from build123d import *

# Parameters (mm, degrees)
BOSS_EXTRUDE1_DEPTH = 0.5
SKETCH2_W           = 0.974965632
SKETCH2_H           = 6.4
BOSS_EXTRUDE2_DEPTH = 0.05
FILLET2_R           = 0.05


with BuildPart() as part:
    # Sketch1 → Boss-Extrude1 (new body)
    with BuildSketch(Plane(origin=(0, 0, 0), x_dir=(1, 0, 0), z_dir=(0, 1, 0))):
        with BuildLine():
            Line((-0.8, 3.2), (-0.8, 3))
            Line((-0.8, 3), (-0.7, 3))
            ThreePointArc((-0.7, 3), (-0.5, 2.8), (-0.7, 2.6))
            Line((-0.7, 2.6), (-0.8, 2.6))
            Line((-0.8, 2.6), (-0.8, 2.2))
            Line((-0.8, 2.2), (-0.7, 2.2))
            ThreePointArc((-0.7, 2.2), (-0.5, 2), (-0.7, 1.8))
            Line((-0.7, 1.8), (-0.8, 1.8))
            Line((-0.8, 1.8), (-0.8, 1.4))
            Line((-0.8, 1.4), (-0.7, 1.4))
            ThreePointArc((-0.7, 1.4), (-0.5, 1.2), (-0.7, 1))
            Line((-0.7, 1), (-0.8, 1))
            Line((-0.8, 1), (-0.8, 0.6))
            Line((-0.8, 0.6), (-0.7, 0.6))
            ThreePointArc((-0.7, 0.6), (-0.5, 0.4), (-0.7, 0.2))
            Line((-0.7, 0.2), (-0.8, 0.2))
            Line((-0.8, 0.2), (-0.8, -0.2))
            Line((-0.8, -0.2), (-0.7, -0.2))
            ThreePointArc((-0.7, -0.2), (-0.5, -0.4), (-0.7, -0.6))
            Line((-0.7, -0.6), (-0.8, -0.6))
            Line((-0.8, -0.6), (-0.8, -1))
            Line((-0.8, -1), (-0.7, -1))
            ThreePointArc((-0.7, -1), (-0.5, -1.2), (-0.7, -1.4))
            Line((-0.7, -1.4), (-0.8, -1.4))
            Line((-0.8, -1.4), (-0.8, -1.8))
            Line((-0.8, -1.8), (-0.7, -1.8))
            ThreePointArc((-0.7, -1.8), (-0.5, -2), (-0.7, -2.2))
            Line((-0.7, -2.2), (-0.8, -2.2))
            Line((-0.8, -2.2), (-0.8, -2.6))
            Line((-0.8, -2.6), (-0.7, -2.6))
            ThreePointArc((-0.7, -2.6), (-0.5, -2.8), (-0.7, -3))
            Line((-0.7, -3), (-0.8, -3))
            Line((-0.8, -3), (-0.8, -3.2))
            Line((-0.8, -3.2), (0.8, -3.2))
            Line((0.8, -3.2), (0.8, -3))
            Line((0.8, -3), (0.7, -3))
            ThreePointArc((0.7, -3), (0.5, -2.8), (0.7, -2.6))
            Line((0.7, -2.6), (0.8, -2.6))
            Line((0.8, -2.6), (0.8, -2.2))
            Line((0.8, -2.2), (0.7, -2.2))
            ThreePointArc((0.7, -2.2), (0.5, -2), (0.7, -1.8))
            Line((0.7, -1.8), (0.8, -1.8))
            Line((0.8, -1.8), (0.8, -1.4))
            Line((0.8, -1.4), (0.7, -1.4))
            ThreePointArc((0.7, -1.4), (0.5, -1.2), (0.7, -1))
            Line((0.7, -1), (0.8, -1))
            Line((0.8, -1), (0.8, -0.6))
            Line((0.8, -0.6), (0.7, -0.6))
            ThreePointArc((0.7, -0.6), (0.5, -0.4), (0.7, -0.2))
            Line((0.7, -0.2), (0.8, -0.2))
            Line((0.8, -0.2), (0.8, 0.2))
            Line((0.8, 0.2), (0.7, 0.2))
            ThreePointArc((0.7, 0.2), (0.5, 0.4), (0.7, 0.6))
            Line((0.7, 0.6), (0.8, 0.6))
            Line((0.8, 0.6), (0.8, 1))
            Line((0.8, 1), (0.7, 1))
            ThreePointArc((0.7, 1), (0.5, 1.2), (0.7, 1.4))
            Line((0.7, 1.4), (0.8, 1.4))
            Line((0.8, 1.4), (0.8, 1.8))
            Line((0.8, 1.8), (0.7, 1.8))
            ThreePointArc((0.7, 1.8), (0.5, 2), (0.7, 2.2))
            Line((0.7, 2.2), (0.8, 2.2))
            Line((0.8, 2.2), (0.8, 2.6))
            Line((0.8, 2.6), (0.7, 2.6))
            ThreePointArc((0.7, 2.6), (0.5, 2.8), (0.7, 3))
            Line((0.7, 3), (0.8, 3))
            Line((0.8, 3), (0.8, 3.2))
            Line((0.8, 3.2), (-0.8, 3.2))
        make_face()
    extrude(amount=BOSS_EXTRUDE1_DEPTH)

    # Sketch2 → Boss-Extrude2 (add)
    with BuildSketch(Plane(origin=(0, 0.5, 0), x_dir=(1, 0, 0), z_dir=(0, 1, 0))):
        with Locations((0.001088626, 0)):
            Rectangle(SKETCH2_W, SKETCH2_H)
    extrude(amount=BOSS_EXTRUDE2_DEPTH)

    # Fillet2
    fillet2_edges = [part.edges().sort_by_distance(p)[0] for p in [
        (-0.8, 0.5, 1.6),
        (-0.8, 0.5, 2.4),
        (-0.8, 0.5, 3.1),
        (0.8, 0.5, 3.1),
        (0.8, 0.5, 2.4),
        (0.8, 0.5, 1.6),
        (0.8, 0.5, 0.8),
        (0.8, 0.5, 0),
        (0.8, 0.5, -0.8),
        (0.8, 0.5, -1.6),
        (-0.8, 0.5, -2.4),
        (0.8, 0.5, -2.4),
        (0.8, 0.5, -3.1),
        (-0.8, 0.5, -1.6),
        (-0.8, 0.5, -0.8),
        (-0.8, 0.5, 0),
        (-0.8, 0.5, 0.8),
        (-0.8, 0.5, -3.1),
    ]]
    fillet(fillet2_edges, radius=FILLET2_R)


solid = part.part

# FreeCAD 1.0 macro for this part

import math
import FreeCAD as App
import Part
import Sketcher
from FreeCAD import Vector
Q = App.Units.Quantity


def edges_at(feature, points):
    """Names of the edges that pass closest to the given points."""
    edges = feature.Shape.Edges
    near = lambda p: min(range(len(edges)), key=lambda i: edges[i].distToShape(Part.Vertex(*p))[0])
    return sorted({f"Edge{near(p) + 1}" for p in points})

doc = App.newDocument("Part")
body = doc.addObject("PartDesign::Body", "Body")

sketch1 = body.newObject("Sketcher::SketchObject", "Sketch")
sketch1.AttachmentSupport = (doc.getObject("XZ_Plane"), [""])
sketch1.MapMode = "FlatFace"
sketch1.addGeometry([
    Part.LineSegment(Vector(-0.8, -3.2, 0), Vector(-0.8, -3, 0)),
    Part.LineSegment(Vector(-0.8, -3, 0), Vector(-0.7, -3, 0)),
    Part.ArcOfCircle(Part.Circle(Vector(-0.7, -2.8, 0), Vector(0, 0, 1), 0.2), math.radians(-90), math.radians(90)),
    Part.LineSegment(Vector(-0.7, -2.6, 0), Vector(-0.8, -2.6, 0)),
    Part.LineSegment(Vector(-0.8, -2.6, 0), Vector(-0.8, -2.2, 0)),
    Part.LineSegment(Vector(-0.8, -2.2, 0), Vector(-0.7, -2.2, 0)),
    Part.ArcOfCircle(Part.Circle(Vector(-0.7, -2, 0), Vector(0, 0, 1), 0.2), math.radians(-90), math.radians(90)),
    Part.LineSegment(Vector(-0.7, -1.8, 0), Vector(-0.8, -1.8, 0)),
    Part.LineSegment(Vector(-0.8, -1.8, 0), Vector(-0.8, -1.4, 0)),
    Part.LineSegment(Vector(-0.8, -1.4, 0), Vector(-0.7, -1.4, 0)),
    Part.ArcOfCircle(Part.Circle(Vector(-0.7, -1.2, 0), Vector(0, 0, 1), 0.2), math.radians(-90), math.radians(90)),
    Part.LineSegment(Vector(-0.7, -1, 0), Vector(-0.8, -1, 0)),
    Part.LineSegment(Vector(-0.8, -1, 0), Vector(-0.8, -0.6, 0)),
    Part.LineSegment(Vector(-0.8, -0.6, 0), Vector(-0.7, -0.6, 0)),
    Part.ArcOfCircle(Part.Circle(Vector(-0.7, -0.4, 0), Vector(0, 0, 1), 0.2), math.radians(-90), math.radians(90)),
    Part.LineSegment(Vector(-0.7, -0.2, 0), Vector(-0.8, -0.2, 0)),
    Part.LineSegment(Vector(-0.8, -0.2, 0), Vector(-0.8, 0.2, 0)),
    Part.LineSegment(Vector(-0.8, 0.2, 0), Vector(-0.7, 0.2, 0)),
    Part.ArcOfCircle(Part.Circle(Vector(-0.7, 0.4, 0), Vector(0, 0, 1), 0.2), math.radians(-90), math.radians(90)),
    Part.LineSegment(Vector(-0.7, 0.6, 0), Vector(-0.8, 0.6, 0)),
    Part.LineSegment(Vector(-0.8, 0.6, 0), Vector(-0.8, 1, 0)),
    Part.LineSegment(Vector(-0.8, 1, 0), Vector(-0.7, 1, 0)),
    Part.ArcOfCircle(Part.Circle(Vector(-0.7, 1.2, 0), Vector(0, 0, 1), 0.2), math.radians(-90), math.radians(90)),
    Part.LineSegment(Vector(-0.7, 1.4, 0), Vector(-0.8, 1.4, 0)),
    Part.LineSegment(Vector(-0.8, 1.4, 0), Vector(-0.8, 1.8, 0)),
    Part.LineSegment(Vector(-0.8, 1.8, 0), Vector(-0.7, 1.8, 0)),
    Part.ArcOfCircle(Part.Circle(Vector(-0.7, 2, 0), Vector(0, 0, 1), 0.2), math.radians(-90), math.radians(90)),
    Part.LineSegment(Vector(-0.7, 2.2, 0), Vector(-0.8, 2.2, 0)),
    Part.LineSegment(Vector(-0.8, 2.2, 0), Vector(-0.8, 2.6, 0)),
    Part.LineSegment(Vector(-0.8, 2.6, 0), Vector(-0.7, 2.6, 0)),
    Part.ArcOfCircle(Part.Circle(Vector(-0.7, 2.8, 0), Vector(0, 0, 1), 0.2), math.radians(-90), math.radians(90)),
    Part.LineSegment(Vector(-0.7, 3, 0), Vector(-0.8, 3, 0)),
    Part.LineSegment(Vector(-0.8, 3, 0), Vector(-0.8, 3.2, 0)),
    Part.LineSegment(Vector(-0.8, 3.2, 0), Vector(0.8, 3.2, 0)),
    Part.LineSegment(Vector(0.8, 3.2, 0), Vector(0.8, 3, 0)),
    Part.LineSegment(Vector(0.8, 3, 0), Vector(0.7, 3, 0)),
    Part.ArcOfCircle(Part.Circle(Vector(0.7, 2.8, 0), Vector(0, 0, 1), 0.2), math.radians(90), math.radians(270)),
    Part.LineSegment(Vector(0.7, 2.6, 0), Vector(0.8, 2.6, 0)),
    Part.LineSegment(Vector(0.8, 2.6, 0), Vector(0.8, 2.2, 0)),
    Part.LineSegment(Vector(0.8, 2.2, 0), Vector(0.7, 2.2, 0)),
    Part.ArcOfCircle(Part.Circle(Vector(0.7, 2, 0), Vector(0, 0, 1), 0.2), math.radians(90), math.radians(270)),
    Part.LineSegment(Vector(0.7, 1.8, 0), Vector(0.8, 1.8, 0)),
    Part.LineSegment(Vector(0.8, 1.8, 0), Vector(0.8, 1.4, 0)),
    Part.LineSegment(Vector(0.8, 1.4, 0), Vector(0.7, 1.4, 0)),
    Part.ArcOfCircle(Part.Circle(Vector(0.7, 1.2, 0), Vector(0, 0, 1), 0.2), math.radians(90), math.radians(270)),
    Part.LineSegment(Vector(0.7, 1, 0), Vector(0.8, 1, 0)),
    Part.LineSegment(Vector(0.8, 1, 0), Vector(0.8, 0.6, 0)),
    Part.LineSegment(Vector(0.8, 0.6, 0), Vector(0.7, 0.6, 0)),
    Part.ArcOfCircle(Part.Circle(Vector(0.7, 0.4, 0), Vector(0, 0, 1), 0.2), math.radians(90), math.radians(270)),
    Part.LineSegment(Vector(0.7, 0.2, 0), Vector(0.8, 0.2, 0)),
    Part.LineSegment(Vector(0.8, 0.2, 0), Vector(0.8, -0.2, 0)),
    Part.LineSegment(Vector(0.8, -0.2, 0), Vector(0.7, -0.2, 0)),
    Part.ArcOfCircle(Part.Circle(Vector(0.7, -0.4, 0), Vector(0, 0, 1), 0.2), math.radians(90), math.radians(270)),
    Part.LineSegment(Vector(0.7, -0.6, 0), Vector(0.8, -0.6, 0)),
    Part.LineSegment(Vector(0.8, -0.6, 0), Vector(0.8, -1, 0)),
    Part.LineSegment(Vector(0.8, -1, 0), Vector(0.7, -1, 0)),
    Part.ArcOfCircle(Part.Circle(Vector(0.7, -1.2, 0), Vector(0, 0, 1), 0.2), math.radians(90), math.radians(270)),
    Part.LineSegment(Vector(0.7, -1.4, 0), Vector(0.8, -1.4, 0)),
    Part.LineSegment(Vector(0.8, -1.4, 0), Vector(0.8, -1.8, 0)),
    Part.LineSegment(Vector(0.8, -1.8, 0), Vector(0.7, -1.8, 0)),
    Part.ArcOfCircle(Part.Circle(Vector(0.7, -2, 0), Vector(0, 0, 1), 0.2), math.radians(90), math.radians(270)),
    Part.LineSegment(Vector(0.7, -2.2, 0), Vector(0.8, -2.2, 0)),
    Part.LineSegment(Vector(0.8, -2.2, 0), Vector(0.8, -2.6, 0)),
    Part.LineSegment(Vector(0.8, -2.6, 0), Vector(0.7, -2.6, 0)),
    Part.ArcOfCircle(Part.Circle(Vector(0.7, -2.8, 0), Vector(0, 0, 1), 0.2), math.radians(90), math.radians(270)),
    Part.LineSegment(Vector(0.7, -3, 0), Vector(0.8, -3, 0)),
    Part.LineSegment(Vector(0.8, -3, 0), Vector(0.8, -3.2, 0)),
    Part.LineSegment(Vector(0.8, -3.2, 0), Vector(-0.8, -3.2, 0)),
], False)
sketch1.addConstraint([
    Sketcher.Constraint("Coincident", 0, 2, 1, 1),
    Sketcher.Constraint("Tangent", 1, 2, 2, 1),
    Sketcher.Constraint("Tangent", 2, 2, 3, 1),
    Sketcher.Constraint("Coincident", 3, 2, 4, 1),
    Sketcher.Constraint("Coincident", 4, 2, 5, 1),
    Sketcher.Constraint("Tangent", 5, 2, 6, 1),
    Sketcher.Constraint("Tangent", 6, 2, 7, 1),
    Sketcher.Constraint("Coincident", 7, 2, 8, 1),
    Sketcher.Constraint("Coincident", 8, 2, 9, 1),
    Sketcher.Constraint("Tangent", 9, 2, 10, 1),
    Sketcher.Constraint("Tangent", 10, 2, 11, 1),
    Sketcher.Constraint("Coincident", 11, 2, 12, 1),
    Sketcher.Constraint("Coincident", 12, 2, 13, 1),
    Sketcher.Constraint("Tangent", 13, 2, 14, 1),
    Sketcher.Constraint("Tangent", 14, 2, 15, 1),
    Sketcher.Constraint("Coincident", 15, 2, 16, 1),
    Sketcher.Constraint("Coincident", 16, 2, 17, 1),
    Sketcher.Constraint("Tangent", 17, 2, 18, 1),
    Sketcher.Constraint("Tangent", 18, 2, 19, 1),
    Sketcher.Constraint("Coincident", 19, 2, 20, 1),
    Sketcher.Constraint("Coincident", 20, 2, 21, 1),
    Sketcher.Constraint("Tangent", 21, 2, 22, 1),
    Sketcher.Constraint("Tangent", 22, 2, 23, 1),
    Sketcher.Constraint("Coincident", 23, 2, 24, 1),
    Sketcher.Constraint("Coincident", 24, 2, 25, 1),
    Sketcher.Constraint("Tangent", 25, 2, 26, 1),
    Sketcher.Constraint("Tangent", 26, 2, 27, 1),
    Sketcher.Constraint("Coincident", 27, 2, 28, 1),
    Sketcher.Constraint("Coincident", 28, 2, 29, 1),
    Sketcher.Constraint("Tangent", 29, 2, 30, 1),
    Sketcher.Constraint("Tangent", 30, 2, 31, 1),
    Sketcher.Constraint("Coincident", 31, 2, 32, 1),
    Sketcher.Constraint("Coincident", 32, 2, 33, 1),
    Sketcher.Constraint("Coincident", 33, 2, 34, 1),
    Sketcher.Constraint("Coincident", 34, 2, 35, 1),
    Sketcher.Constraint("Tangent", 35, 2, 36, 1),
    Sketcher.Constraint("Tangent", 36, 2, 37, 1),
    Sketcher.Constraint("Coincident", 37, 2, 38, 1),
    Sketcher.Constraint("Coincident", 38, 2, 39, 1),
    Sketcher.Constraint("Tangent", 39, 2, 40, 1),
    Sketcher.Constraint("Tangent", 40, 2, 41, 1),
    Sketcher.Constraint("Coincident", 41, 2, 42, 1),
    Sketcher.Constraint("Coincident", 42, 2, 43, 1),
    Sketcher.Constraint("Tangent", 43, 2, 44, 1),
    Sketcher.Constraint("Tangent", 44, 2, 45, 1),
    Sketcher.Constraint("Coincident", 45, 2, 46, 1),
    Sketcher.Constraint("Coincident", 46, 2, 47, 1),
    Sketcher.Constraint("Tangent", 47, 2, 48, 1),
    Sketcher.Constraint("Tangent", 48, 2, 49, 1),
    Sketcher.Constraint("Coincident", 49, 2, 50, 1),
    Sketcher.Constraint("Coincident", 50, 2, 51, 1),
    Sketcher.Constraint("Tangent", 51, 2, 52, 1),
    Sketcher.Constraint("Tangent", 52, 2, 53, 1),
    Sketcher.Constraint("Coincident", 53, 2, 54, 1),
    Sketcher.Constraint("Coincident", 54, 2, 55, 1),
    Sketcher.Constraint("Tangent", 55, 2, 56, 1),
    Sketcher.Constraint("Tangent", 56, 2, 57, 1),
    Sketcher.Constraint("Coincident", 57, 2, 58, 1),
    Sketcher.Constraint("Coincident", 58, 2, 59, 1),
    Sketcher.Constraint("Tangent", 59, 2, 60, 1),
    Sketcher.Constraint("Tangent", 60, 2, 61, 1),
    Sketcher.Constraint("Coincident", 61, 2, 62, 1),
    Sketcher.Constraint("Coincident", 62, 2, 63, 1),
    Sketcher.Constraint("Tangent", 63, 2, 64, 1),
    Sketcher.Constraint("Tangent", 64, 2, 65, 1),
    Sketcher.Constraint("Coincident", 65, 2, 66, 1),
    Sketcher.Constraint("Coincident", 66, 2, 67, 1),
    Sketcher.Constraint("Coincident", 67, 2, 0, 1),
    Sketcher.Constraint("Vertical", 0),
    Sketcher.Constraint("Horizontal", 1),
    Sketcher.Constraint("Horizontal", 3),
    Sketcher.Constraint("Vertical", 4),
    Sketcher.Constraint("Horizontal", 5),
    Sketcher.Constraint("Horizontal", 7),
    Sketcher.Constraint("Vertical", 8),
    Sketcher.Constraint("Horizontal", 9),
    Sketcher.Constraint("Horizontal", 11),
    Sketcher.Constraint("Vertical", 12),
    Sketcher.Constraint("Horizontal", 13),
    Sketcher.Constraint("Horizontal", 15),
    Sketcher.Constraint("Vertical", 16),
    Sketcher.Constraint("Horizontal", 17),
    Sketcher.Constraint("Horizontal", 19),
    Sketcher.Constraint("Vertical", 20),
    Sketcher.Constraint("Horizontal", 21),
    Sketcher.Constraint("Horizontal", 23),
    Sketcher.Constraint("Vertical", 24),
    Sketcher.Constraint("Horizontal", 25),
    Sketcher.Constraint("Horizontal", 27),
    Sketcher.Constraint("Vertical", 28),
    Sketcher.Constraint("Horizontal", 29),
    Sketcher.Constraint("Horizontal", 31),
    Sketcher.Constraint("Vertical", 32),
    Sketcher.Constraint("Horizontal", 33),
    Sketcher.Constraint("Vertical", 34),
    Sketcher.Constraint("Horizontal", 35),
    Sketcher.Constraint("Horizontal", 37),
    Sketcher.Constraint("Vertical", 38),
    Sketcher.Constraint("Horizontal", 39),
    Sketcher.Constraint("Horizontal", 41),
    Sketcher.Constraint("Vertical", 42),
    Sketcher.Constraint("Horizontal", 43),
    Sketcher.Constraint("Horizontal", 45),
    Sketcher.Constraint("Vertical", 46),
    Sketcher.Constraint("Horizontal", 47),
    Sketcher.Constraint("Horizontal", 49),
    Sketcher.Constraint("Vertical", 50),
    Sketcher.Constraint("Horizontal", 51),
    Sketcher.Constraint("Horizontal", 53),
    Sketcher.Constraint("Vertical", 54),
    Sketcher.Constraint("Horizontal", 55),
    Sketcher.Constraint("Horizontal", 57),
    Sketcher.Constraint("Vertical", 58),
    Sketcher.Constraint("Horizontal", 59),
    Sketcher.Constraint("Horizontal", 61),
    Sketcher.Constraint("Vertical", 62),
    Sketcher.Constraint("Horizontal", 63),
    Sketcher.Constraint("Horizontal", 65),
    Sketcher.Constraint("Vertical", 66),
    Sketcher.Constraint("Horizontal", 67),
    Sketcher.Constraint("Equal", 2, 6),
    Sketcher.Constraint("Equal", 6, 10),
    Sketcher.Constraint("Equal", 10, 14),
    Sketcher.Constraint("Equal", 14, 18),
    Sketcher.Constraint("Equal", 18, 22),
    Sketcher.Constraint("Equal", 22, 26),
    Sketcher.Constraint("Equal", 26, 30),
    Sketcher.Constraint("Equal", 30, 36),
    Sketcher.Constraint("Equal", 36, 40),
    Sketcher.Constraint("Equal", 40, 44),
    Sketcher.Constraint("Equal", 44, 48),
    Sketcher.Constraint("Equal", 48, 52),
    Sketcher.Constraint("Equal", 52, 56),
    Sketcher.Constraint("Equal", 56, 60),
    Sketcher.Constraint("Equal", 60, 64),
    Sketcher.Constraint("Symmetric", 2, 3, 36, 3, -1, 1),
    Sketcher.Constraint("Symmetric", 6, 3, 40, 3, -1, 1),
    Sketcher.Constraint("Symmetric", 10, 3, 44, 3, -1, 1),
    Sketcher.Constraint("Symmetric", 14, 3, 48, 3, -1, 1),
    Sketcher.Constraint("Symmetric", 18, 3, 52, 3, -1, 1),
    Sketcher.Constraint("Symmetric", 22, 3, 56, 3, -1, 1),
    Sketcher.Constraint("Symmetric", 26, 3, 60, 3, -1, 1),
    Sketcher.Constraint("Symmetric", 30, 3, 64, 3, -1, 1),
    Sketcher.Constraint("Symmetric", 32, 2, 66, 2, -1, 1),
    Sketcher.Constraint("Symmetric", 30, 3, 36, 3, -2),
    Sketcher.Constraint("Symmetric", 26, 3, 40, 3, -2),
    Sketcher.Constraint("Symmetric", 22, 3, 44, 3, -2),
    Sketcher.Constraint("Symmetric", 18, 3, 48, 3, -2),
    Sketcher.Constraint("Vertical", 2, 3, 6, 3),
    Sketcher.Constraint("Vertical", 6, 3, 10, 3),
    Sketcher.Constraint("Vertical", 10, 3, 14, 3),
    Sketcher.Constraint("Vertical", 0, 2, 3, 2),
    Sketcher.Constraint("Vertical", 4, 2, 7, 2),
    Sketcher.Constraint("Vertical", 8, 2, 11, 2),
    Sketcher.Constraint("Vertical", 12, 2, 15, 2),
    Sketcher.Constraint("Vertical", 16, 2, 19, 2),
    Sketcher.Constraint("Vertical", 20, 2, 23, 2),
    Sketcher.Constraint("Vertical", 24, 2, 27, 2),
    Sketcher.Constraint("Vertical", 28, 2, 31, 2),
    Sketcher.Constraint("Vertical", 34, 2, 37, 2),
    Sketcher.Constraint("Vertical", 38, 2, 41, 2),
    Sketcher.Constraint("Vertical", 42, 2, 45, 2),
    Sketcher.Constraint("Vertical", 46, 2, 49, 2),
    Sketcher.Constraint("Vertical", 50, 2, 53, 2),
    Sketcher.Constraint("Vertical", 54, 2, 57, 2),
    Sketcher.Constraint("Vertical", 58, 2, 61, 2),
    Sketcher.Constraint("Vertical", 62, 2, 65, 2),
    Sketcher.Constraint("Equal", 4, 8),
    Sketcher.Constraint("Equal", 8, 12),
    Sketcher.Constraint("Equal", 12, 16),
    Sketcher.Constraint("Radius", 2, Q("0.2 mm")),
    Sketcher.Constraint("DistanceX", 1, 1, 1, 2, Q("0.1 mm")),
    Sketcher.Constraint("DistanceX", 33, 1, 33, 2, Q("1.6 mm")),
    Sketcher.Constraint("DistanceY", 0, 1, 0, 2, Q("0.2 mm")),
    Sketcher.Constraint("DistanceY", 4, 1, 4, 2, Q("0.4 mm")),
])
pad1 = body.newObject("PartDesign::Pad", "Pad")
pad1.Profile = sketch1
pad1.Length = 0.5
pad1.Reversed = True

sketch2 = body.newObject("Sketcher::SketchObject", "Sketch001")
sketch2.AttachmentSupport = (doc.getObject("XZ_Plane"), [""])
sketch2.MapMode = "FlatFace"
sketch2.AttachmentOffset = App.Placement(Vector(0, 0, -0.5), App.Rotation())
sketch2.addGeometry([
    Part.LineSegment(Vector(-0.486394, -3.2, 0), Vector(-0.486394, 3.2, 0)),
    Part.LineSegment(Vector(-0.486394, 3.2, 0), Vector(0.488571, 3.2, 0)),
    Part.LineSegment(Vector(0.488571, 3.2, 0), Vector(0.488571, -3.2, 0)),
    Part.LineSegment(Vector(0.488571, -3.2, 0), Vector(-0.486394, -3.2, 0)),
], False)
sketch2.addConstraint([
    Sketcher.Constraint("Coincident", 0, 2, 1, 1),
    Sketcher.Constraint("Coincident", 1, 2, 2, 1),
    Sketcher.Constraint("Coincident", 2, 2, 3, 1),
    Sketcher.Constraint("Coincident", 3, 2, 0, 1),
    Sketcher.Constraint("Vertical", 0),
    Sketcher.Constraint("Horizontal", 1),
    Sketcher.Constraint("Vertical", 2),
    Sketcher.Constraint("Horizontal", 3),
    Sketcher.Constraint("DistanceY", 0, 1, 0, 2, Q("6.4 mm")),
    Sketcher.Constraint("DistanceY", -1, 1, 0, 2, Q("3.2 mm")),
    Sketcher.Constraint("DistanceX", 1, 1, 1, 2, Q("0.974966 mm")),
    Sketcher.Constraint("DistanceX", -1, 1, 1, 2, Q("0.488571 mm")),
])
pad2 = body.newObject("PartDesign::Pad", "Pad001")
pad2.Profile = sketch2
pad2.Length = 0.05
pad2.Reversed = True
doc.recompute()

fillet = body.newObject("PartDesign::Fillet", "Fillet")
fillet.Base = (pad2, edges_at(pad2, [
    (-0.8, 0.5, 1.6),
    (-0.8, 0.5, 2.4),
    (-0.8, 0.5, 3.1),
    (0.8, 0.5, 3.1),
    (0.8, 0.5, 2.4),
    (0.8, 0.5, 1.6),
    (0.8, 0.5, 0.8),
    (0.8, 0.5, 0),
    (0.8, 0.5, -0.8),
    (0.8, 0.5, -1.6),
    (-0.8, 0.5, -2.4),
    (0.8, 0.5, -2.4),
    (0.8, 0.5, -3.1),
    (-0.8, 0.5, -1.6),
    (-0.8, 0.5, -0.8),
    (-0.8, 0.5, 0),
    (-0.8, 0.5, 0.8),
    (-0.8, 0.5, -3.1),
]))
fillet.Radius = 0.05

doc.recompute()
